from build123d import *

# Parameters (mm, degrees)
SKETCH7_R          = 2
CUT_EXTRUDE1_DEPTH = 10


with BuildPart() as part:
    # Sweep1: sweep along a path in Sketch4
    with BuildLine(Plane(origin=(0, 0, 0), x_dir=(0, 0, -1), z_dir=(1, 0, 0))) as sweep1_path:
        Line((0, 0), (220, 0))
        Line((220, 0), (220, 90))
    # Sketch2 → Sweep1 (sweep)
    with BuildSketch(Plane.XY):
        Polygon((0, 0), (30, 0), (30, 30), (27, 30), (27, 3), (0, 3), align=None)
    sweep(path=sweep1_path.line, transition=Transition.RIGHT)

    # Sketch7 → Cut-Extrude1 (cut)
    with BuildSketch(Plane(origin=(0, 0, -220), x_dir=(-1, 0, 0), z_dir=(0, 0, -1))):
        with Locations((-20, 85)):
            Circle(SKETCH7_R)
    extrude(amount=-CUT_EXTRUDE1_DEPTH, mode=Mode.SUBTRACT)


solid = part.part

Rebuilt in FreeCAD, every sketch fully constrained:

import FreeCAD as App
import Part
import Sketcher

V = App.Vector

doc = App.newDocument("Part")
body = doc.addObject("PartDesign::Body", "Body")

# Sketch on XY plane
sketch1 = body.newObject("Sketcher::SketchObject", "Sketch")
sketch1.AttachmentSupport = (doc.getObject("XY_Plane"), [""])
sketch1.MapMode = "FlatFace"
sketch1.addGeometry([
    Part.LineSegment(V(0, 0, 0), V(30, 0, 0)),  # 0
    Part.LineSegment(V(30, 0, 0), V(30, 30, 0)),  # 1
    Part.LineSegment(V(30, 30, 0), V(27, 30, 0)),  # 2
    Part.LineSegment(V(27, 30, 0), V(27, 3, 0)),  # 3
    Part.LineSegment(V(27, 3, 0), V(0, 3, 0)),  # 4
    Part.LineSegment(V(0, 3, 0), V(0, 0, 0)),  # 5
], False)
sketch1.addConstraint([
    Sketcher.Constraint("Coincident", 0, 2, 1, 1),
    Sketcher.Constraint("Coincident", 1, 2, 2, 1),
    Sketcher.Constraint("Coincident", 2, 2, 3, 1),
    Sketcher.Constraint("Coincident", 3, 2, 4, 1),
    Sketcher.Constraint("Coincident", 4, 2, 5, 1),
    Sketcher.Constraint("Coincident", 5, 2, 0, 1),
    Sketcher.Constraint("Horizontal", 0),
    Sketcher.Constraint("Vertical", 1),
    Sketcher.Constraint("Horizontal", 2),
    Sketcher.Constraint("Vertical", 3),
    Sketcher.Constraint("Horizontal", 4),
    Sketcher.Constraint("Vertical", 5),
    Sketcher.Constraint("Coincident", 5, 2, -1, 1),
    Sketcher.Constraint("Equal", 0, 1),
    Sketcher.Constraint("Equal", 4, 3),
    Sketcher.Constraint("DistanceX", 0, 1, 0, 2, 30.0),
    Sketcher.Constraint("DistanceX", 2, 2, 2, 1, 3.0),
])

# Sketch on YZ plane
sketch2 = body.newObject("Sketcher::SketchObject", "Sketch001")
sketch2.AttachmentSupport = (doc.getObject("YZ_Plane"), [""])
sketch2.MapMode = "FlatFace"
sketch2.addGeometry([
    Part.LineSegment(V(0, 0, 0), V(0, -220, 0)),
    Part.LineSegment(V(0, -220, 0), V(90, -220, 0)),
], False)
sketch2.addConstraint([
    Sketcher.Constraint("Coincident", 0, 2, 1, 1),
    Sketcher.Constraint("Vertical", 0),
    Sketcher.Constraint("Horizontal", 1),
    Sketcher.Constraint("Coincident", 0, 1, -1, 1),
    Sketcher.Constraint("DistanceX", 1, 1, 1, 2, 90.0),
    Sketcher.Constraint("DistanceY", 0, 2, 0, 1, 220.0),
])
doc.recompute()

additivepipe = body.newObject("PartDesign::AdditivePipe", "AdditivePipe")
additivepipe.Profile = sketch1
additivepipe.Spine = (sketch2, ["Edge1", "Edge2"])
additivepipe.Transition = "Right corner"

# Sketch on XY plane
sketch3 = body.newObject("Sketcher::SketchObject", "Sketch002")
sketch3.AttachmentSupport = (doc.getObject("XY_Plane"), [""])
sketch3.MapMode = "FlatFace"
sketch3.AttachmentOffset = App.Placement(V(0, 0, -220), App.Rotation())
sketch3.addGeometry(Part.Circle(V(20, 85, 0), V(0, 0, 1), 2), False)
sketch3.addConstraint([
    Sketcher.Constraint("Diameter", 0, 4.0),
    Sketcher.Constraint("DistanceX", -1, 1, 0, 3, 20.0),
    Sketcher.Constraint("DistanceY", -1, 1, 0, 3, 85.0),
])
pocket1 = body.newObject("PartDesign::Pocket", "Pocket")
pocket1.Profile = sketch3
pocket1.Length = 10
pocket1.Reversed = True

doc.recompute()
